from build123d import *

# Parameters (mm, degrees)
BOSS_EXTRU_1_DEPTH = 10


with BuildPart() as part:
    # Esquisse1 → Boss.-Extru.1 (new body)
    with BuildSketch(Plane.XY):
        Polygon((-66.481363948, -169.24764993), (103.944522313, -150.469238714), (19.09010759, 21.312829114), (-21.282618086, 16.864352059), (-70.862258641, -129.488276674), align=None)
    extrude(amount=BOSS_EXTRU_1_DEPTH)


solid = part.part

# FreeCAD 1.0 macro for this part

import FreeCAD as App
import Part
import Sketcher


def add_polygon(sketch, points):
    """Adds a closed chain of lines whose ends are joined by coincident constraints."""
    first, n = sketch.GeometryCount, len(points)
    for a, b in zip(points, points[1:] + points[:1]):
        sketch.addGeometry(Part.LineSegment(App.Vector(*a, 0), App.Vector(*b, 0)), False)
    for i in range(n):
        sketch.addConstraint(Sketcher.Constraint("Coincident", first + i, 2, first + (i + 1) % n, 1))

doc = App.newDocument("Part")
body = doc.addObject("PartDesign::Body", "Body")

# Sketch on XY plane
sketch1 = doc.addObject("Sketcher::SketchObject", "Sketch")
body.addObject(sketch1)
sketch1.AttachmentSupport = (doc.XY_Plane, [""])
sketch1.MapMode = "FlatFace"
add_polygon(sketch1, [(-66.481364, -169.24765), (103.944522, -150.469239), (19.090108, 21.312829), (-21.282618, 16.864352), (-70.862259, -129.488277)])  # lines 0-4
sketch1.addConstraint([
    Sketcher.Constraint("Parallel", 0, 2),
    Sketcher.Constraint("Perpendicular", 2, 4),
    Sketcher.Constraint("Distance", 4, 40.0),
    Sketcher.Constraint("DistanceY", 4, 2, 2, 2, 186.112002),
    Sketcher.Constraint("DistanceY", 0, 2, -1, 1, 150.469239),
    Sketcher.Constraint("DistanceY", -1, 1, 1, 2, 21.312829),
    Sketcher.Constraint("DistanceX", 2, 2, -1, 1, 21.282618),
    Sketcher.Constraint("DistanceX", 3, 2, -1, 1, 70.862259),
    Sketcher.Constraint("DistanceY", 4, 2, -1, 1, 169.24765),
    Sketcher.Constraint("DistanceX", 2, 2, 0, 2, 125.22714),
])
pad1 = doc.addObject("PartDesign::Pad", "Pad")
body.addObject(pad1)
pad1.Profile = sketch1
pad1.Length = 10

doc.recompute()
